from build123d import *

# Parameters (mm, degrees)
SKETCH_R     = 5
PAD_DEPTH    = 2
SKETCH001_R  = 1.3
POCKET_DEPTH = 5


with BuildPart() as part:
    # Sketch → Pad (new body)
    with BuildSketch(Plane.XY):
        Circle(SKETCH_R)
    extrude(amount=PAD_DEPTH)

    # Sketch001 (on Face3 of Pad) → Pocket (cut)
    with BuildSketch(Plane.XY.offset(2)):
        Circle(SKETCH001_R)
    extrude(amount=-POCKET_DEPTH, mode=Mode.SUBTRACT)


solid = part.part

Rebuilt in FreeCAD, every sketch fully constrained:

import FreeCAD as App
import Part
import Sketcher
Q = App.Units.Quantity

doc = App.newDocument("Part")
body = doc.addObject("PartDesign::Body", "Body")

# Sketch on XY plane
sketch1 = body.newObject("Sketcher::SketchObject", "Sketch")
sketch1.AttachmentSupport = (doc.getObject("XY_Plane"), [""])
sketch1.MapMode = "FlatFace"
sketch1.addGeometry(Part.Circle(App.Vector(0, 0, 0), App.Vector(0, 0, 1), 5), False)
sketch1.addConstraint([
    Sketcher.Constraint("Coincident", 0, 3, -1, 1),
    Sketcher.Constraint("Diameter", 0, Q("10 mm")),
])
pad1 = body.newObject("PartDesign::Pad", "Pad")
pad1.Profile = sketch1
pad1.Length = 2

# Sketch on XY plane
sketch2 = body.newObject("Sketcher::SketchObject", "Sketch001")
sketch2.AttachmentSupport = (doc.getObject("XY_Plane"), [""])
sketch2.MapMode = "FlatFace"
sketch2.AttachmentOffset = App.Placement(App.Vector(0, 0, 2), App.Rotation())
sketch2.addGeometry(Part.Circle(App.Vector(0, 0, 0), App.Vector(0, 0, 1), 1.3), False)
sketch2.addConstraint([
    Sketcher.Constraint("Coincident", 0, 3, -1, 1),
    Sketcher.Constraint("Diameter", 0, Q("2.6 mm")),
])
pocket1 = body.newObject("PartDesign::Pocket", "Pocket")
pocket1.Profile = sketch2
pocket1.Length = 5

doc.recompute()
